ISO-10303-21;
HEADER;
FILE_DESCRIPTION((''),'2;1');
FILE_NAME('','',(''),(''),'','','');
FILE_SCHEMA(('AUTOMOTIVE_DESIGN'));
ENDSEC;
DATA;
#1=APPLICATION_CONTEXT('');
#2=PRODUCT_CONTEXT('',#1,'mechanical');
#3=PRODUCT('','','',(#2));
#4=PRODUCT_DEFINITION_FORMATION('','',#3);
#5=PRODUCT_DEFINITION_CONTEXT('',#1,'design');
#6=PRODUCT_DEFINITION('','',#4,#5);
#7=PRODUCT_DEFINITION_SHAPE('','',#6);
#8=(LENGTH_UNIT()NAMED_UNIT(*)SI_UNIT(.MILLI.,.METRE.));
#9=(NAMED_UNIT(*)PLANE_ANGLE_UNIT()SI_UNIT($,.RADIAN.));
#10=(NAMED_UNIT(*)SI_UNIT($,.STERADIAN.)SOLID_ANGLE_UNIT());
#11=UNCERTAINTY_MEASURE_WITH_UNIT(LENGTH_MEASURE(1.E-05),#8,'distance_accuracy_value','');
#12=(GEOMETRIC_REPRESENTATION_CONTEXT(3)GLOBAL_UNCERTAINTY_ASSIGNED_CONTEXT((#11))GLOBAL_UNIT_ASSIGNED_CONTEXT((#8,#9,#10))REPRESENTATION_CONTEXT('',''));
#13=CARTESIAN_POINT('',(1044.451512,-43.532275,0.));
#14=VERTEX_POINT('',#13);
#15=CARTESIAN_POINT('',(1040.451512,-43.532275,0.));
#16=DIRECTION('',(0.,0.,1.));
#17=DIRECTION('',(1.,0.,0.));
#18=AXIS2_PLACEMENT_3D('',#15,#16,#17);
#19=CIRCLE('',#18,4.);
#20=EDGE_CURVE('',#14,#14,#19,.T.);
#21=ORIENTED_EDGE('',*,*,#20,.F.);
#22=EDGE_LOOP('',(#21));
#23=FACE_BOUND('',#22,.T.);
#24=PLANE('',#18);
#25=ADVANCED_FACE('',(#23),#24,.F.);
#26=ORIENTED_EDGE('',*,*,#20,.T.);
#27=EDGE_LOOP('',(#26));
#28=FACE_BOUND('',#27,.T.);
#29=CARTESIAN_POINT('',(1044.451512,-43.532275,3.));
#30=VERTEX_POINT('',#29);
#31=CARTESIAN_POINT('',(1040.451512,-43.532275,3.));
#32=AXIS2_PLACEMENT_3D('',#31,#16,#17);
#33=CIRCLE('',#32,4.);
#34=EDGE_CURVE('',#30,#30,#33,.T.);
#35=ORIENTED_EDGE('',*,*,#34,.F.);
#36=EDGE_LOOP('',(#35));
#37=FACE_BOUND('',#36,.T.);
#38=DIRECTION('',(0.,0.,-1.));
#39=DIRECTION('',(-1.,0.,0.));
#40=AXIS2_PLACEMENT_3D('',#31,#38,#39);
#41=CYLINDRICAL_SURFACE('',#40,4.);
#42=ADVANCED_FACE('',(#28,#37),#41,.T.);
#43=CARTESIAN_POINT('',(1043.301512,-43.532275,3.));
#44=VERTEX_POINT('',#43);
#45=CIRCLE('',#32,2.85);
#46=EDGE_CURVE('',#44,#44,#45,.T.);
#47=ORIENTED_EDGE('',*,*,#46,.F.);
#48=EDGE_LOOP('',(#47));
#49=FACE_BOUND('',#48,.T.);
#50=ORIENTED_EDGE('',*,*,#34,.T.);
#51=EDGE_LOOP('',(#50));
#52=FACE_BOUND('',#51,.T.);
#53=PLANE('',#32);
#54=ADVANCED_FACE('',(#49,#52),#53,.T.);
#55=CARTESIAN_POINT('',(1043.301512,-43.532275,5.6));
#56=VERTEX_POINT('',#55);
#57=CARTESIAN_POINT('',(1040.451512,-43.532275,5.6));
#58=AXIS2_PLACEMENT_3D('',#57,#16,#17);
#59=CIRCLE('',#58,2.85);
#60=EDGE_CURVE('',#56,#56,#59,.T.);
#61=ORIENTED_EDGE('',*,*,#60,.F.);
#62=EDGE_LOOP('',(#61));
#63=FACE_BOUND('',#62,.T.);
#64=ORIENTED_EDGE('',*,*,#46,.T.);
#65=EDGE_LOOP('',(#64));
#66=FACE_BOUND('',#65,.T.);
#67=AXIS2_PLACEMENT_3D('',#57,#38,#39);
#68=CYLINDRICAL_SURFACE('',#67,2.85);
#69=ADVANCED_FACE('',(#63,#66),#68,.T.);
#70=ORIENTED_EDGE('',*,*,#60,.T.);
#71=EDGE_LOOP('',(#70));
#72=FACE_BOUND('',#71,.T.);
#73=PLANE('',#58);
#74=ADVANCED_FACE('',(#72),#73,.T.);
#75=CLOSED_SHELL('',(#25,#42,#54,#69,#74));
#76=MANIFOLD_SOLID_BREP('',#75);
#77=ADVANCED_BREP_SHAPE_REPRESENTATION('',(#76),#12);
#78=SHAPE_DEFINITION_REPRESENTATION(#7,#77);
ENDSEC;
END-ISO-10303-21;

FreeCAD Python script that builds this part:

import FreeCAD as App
import Part
import Sketcher
Q = App.Units.Quantity

doc = App.newDocument("Part")
body = doc.addObject("PartDesign::Body", "Body")

sketch1 = body.newObject("Sketcher::SketchObject", "Sketch")
sketch1.AttachmentSupport = (doc.getObject("XY_Plane"), [""])
sketch1.MapMode = "FlatFace"
sketch1.addGeometry(Part.Circle(App.Vector(1040.5, -43.5, 0), App.Vector(0, 0, 1), 4), False)
sketch1.addConstraint([
    Sketcher.Constraint("Diameter", 0, Q("8 mm")),
    Sketcher.Constraint("DistanceX", -1, 1, 0, 3, Q("1040.451512 mm")),
    Sketcher.Constraint("DistanceY", 0, 3, -1, 1, Q("43.532275 mm")),
])
pad1 = body.newObject("PartDesign::Pad", "Pad")
pad1.Profile = sketch1
pad1.Length = 3

sketch2 = body.newObject("Sketcher::SketchObject", "Sketch001")
sketch2.AttachmentSupport = (doc.getObject("XY_Plane"), [""])
sketch2.MapMode = "FlatFace"
sketch2.AttachmentOffset = App.Placement(App.Vector(0, 0, 3), App.Rotation())
sketch2.addGeometry(Part.Circle(App.Vector(1040.5, -43.5, 0), App.Vector(0, 0, 1), 2.9), False)
sketch2.addConstraint([
    Sketcher.Constraint("Diameter", 0, Q("5.7 mm")),
    Sketcher.Constraint("DistanceX", -1, 1, 0, 3, Q("1040.451512 mm")),
    Sketcher.Constraint("DistanceY", 0, 3, -1, 1, Q("43.532275 mm")),
])
pad2 = body.newObject("PartDesign::Pad", "Pad001")
pad2.Profile = sketch2
pad2.Length = 2.6

doc.recompute()
